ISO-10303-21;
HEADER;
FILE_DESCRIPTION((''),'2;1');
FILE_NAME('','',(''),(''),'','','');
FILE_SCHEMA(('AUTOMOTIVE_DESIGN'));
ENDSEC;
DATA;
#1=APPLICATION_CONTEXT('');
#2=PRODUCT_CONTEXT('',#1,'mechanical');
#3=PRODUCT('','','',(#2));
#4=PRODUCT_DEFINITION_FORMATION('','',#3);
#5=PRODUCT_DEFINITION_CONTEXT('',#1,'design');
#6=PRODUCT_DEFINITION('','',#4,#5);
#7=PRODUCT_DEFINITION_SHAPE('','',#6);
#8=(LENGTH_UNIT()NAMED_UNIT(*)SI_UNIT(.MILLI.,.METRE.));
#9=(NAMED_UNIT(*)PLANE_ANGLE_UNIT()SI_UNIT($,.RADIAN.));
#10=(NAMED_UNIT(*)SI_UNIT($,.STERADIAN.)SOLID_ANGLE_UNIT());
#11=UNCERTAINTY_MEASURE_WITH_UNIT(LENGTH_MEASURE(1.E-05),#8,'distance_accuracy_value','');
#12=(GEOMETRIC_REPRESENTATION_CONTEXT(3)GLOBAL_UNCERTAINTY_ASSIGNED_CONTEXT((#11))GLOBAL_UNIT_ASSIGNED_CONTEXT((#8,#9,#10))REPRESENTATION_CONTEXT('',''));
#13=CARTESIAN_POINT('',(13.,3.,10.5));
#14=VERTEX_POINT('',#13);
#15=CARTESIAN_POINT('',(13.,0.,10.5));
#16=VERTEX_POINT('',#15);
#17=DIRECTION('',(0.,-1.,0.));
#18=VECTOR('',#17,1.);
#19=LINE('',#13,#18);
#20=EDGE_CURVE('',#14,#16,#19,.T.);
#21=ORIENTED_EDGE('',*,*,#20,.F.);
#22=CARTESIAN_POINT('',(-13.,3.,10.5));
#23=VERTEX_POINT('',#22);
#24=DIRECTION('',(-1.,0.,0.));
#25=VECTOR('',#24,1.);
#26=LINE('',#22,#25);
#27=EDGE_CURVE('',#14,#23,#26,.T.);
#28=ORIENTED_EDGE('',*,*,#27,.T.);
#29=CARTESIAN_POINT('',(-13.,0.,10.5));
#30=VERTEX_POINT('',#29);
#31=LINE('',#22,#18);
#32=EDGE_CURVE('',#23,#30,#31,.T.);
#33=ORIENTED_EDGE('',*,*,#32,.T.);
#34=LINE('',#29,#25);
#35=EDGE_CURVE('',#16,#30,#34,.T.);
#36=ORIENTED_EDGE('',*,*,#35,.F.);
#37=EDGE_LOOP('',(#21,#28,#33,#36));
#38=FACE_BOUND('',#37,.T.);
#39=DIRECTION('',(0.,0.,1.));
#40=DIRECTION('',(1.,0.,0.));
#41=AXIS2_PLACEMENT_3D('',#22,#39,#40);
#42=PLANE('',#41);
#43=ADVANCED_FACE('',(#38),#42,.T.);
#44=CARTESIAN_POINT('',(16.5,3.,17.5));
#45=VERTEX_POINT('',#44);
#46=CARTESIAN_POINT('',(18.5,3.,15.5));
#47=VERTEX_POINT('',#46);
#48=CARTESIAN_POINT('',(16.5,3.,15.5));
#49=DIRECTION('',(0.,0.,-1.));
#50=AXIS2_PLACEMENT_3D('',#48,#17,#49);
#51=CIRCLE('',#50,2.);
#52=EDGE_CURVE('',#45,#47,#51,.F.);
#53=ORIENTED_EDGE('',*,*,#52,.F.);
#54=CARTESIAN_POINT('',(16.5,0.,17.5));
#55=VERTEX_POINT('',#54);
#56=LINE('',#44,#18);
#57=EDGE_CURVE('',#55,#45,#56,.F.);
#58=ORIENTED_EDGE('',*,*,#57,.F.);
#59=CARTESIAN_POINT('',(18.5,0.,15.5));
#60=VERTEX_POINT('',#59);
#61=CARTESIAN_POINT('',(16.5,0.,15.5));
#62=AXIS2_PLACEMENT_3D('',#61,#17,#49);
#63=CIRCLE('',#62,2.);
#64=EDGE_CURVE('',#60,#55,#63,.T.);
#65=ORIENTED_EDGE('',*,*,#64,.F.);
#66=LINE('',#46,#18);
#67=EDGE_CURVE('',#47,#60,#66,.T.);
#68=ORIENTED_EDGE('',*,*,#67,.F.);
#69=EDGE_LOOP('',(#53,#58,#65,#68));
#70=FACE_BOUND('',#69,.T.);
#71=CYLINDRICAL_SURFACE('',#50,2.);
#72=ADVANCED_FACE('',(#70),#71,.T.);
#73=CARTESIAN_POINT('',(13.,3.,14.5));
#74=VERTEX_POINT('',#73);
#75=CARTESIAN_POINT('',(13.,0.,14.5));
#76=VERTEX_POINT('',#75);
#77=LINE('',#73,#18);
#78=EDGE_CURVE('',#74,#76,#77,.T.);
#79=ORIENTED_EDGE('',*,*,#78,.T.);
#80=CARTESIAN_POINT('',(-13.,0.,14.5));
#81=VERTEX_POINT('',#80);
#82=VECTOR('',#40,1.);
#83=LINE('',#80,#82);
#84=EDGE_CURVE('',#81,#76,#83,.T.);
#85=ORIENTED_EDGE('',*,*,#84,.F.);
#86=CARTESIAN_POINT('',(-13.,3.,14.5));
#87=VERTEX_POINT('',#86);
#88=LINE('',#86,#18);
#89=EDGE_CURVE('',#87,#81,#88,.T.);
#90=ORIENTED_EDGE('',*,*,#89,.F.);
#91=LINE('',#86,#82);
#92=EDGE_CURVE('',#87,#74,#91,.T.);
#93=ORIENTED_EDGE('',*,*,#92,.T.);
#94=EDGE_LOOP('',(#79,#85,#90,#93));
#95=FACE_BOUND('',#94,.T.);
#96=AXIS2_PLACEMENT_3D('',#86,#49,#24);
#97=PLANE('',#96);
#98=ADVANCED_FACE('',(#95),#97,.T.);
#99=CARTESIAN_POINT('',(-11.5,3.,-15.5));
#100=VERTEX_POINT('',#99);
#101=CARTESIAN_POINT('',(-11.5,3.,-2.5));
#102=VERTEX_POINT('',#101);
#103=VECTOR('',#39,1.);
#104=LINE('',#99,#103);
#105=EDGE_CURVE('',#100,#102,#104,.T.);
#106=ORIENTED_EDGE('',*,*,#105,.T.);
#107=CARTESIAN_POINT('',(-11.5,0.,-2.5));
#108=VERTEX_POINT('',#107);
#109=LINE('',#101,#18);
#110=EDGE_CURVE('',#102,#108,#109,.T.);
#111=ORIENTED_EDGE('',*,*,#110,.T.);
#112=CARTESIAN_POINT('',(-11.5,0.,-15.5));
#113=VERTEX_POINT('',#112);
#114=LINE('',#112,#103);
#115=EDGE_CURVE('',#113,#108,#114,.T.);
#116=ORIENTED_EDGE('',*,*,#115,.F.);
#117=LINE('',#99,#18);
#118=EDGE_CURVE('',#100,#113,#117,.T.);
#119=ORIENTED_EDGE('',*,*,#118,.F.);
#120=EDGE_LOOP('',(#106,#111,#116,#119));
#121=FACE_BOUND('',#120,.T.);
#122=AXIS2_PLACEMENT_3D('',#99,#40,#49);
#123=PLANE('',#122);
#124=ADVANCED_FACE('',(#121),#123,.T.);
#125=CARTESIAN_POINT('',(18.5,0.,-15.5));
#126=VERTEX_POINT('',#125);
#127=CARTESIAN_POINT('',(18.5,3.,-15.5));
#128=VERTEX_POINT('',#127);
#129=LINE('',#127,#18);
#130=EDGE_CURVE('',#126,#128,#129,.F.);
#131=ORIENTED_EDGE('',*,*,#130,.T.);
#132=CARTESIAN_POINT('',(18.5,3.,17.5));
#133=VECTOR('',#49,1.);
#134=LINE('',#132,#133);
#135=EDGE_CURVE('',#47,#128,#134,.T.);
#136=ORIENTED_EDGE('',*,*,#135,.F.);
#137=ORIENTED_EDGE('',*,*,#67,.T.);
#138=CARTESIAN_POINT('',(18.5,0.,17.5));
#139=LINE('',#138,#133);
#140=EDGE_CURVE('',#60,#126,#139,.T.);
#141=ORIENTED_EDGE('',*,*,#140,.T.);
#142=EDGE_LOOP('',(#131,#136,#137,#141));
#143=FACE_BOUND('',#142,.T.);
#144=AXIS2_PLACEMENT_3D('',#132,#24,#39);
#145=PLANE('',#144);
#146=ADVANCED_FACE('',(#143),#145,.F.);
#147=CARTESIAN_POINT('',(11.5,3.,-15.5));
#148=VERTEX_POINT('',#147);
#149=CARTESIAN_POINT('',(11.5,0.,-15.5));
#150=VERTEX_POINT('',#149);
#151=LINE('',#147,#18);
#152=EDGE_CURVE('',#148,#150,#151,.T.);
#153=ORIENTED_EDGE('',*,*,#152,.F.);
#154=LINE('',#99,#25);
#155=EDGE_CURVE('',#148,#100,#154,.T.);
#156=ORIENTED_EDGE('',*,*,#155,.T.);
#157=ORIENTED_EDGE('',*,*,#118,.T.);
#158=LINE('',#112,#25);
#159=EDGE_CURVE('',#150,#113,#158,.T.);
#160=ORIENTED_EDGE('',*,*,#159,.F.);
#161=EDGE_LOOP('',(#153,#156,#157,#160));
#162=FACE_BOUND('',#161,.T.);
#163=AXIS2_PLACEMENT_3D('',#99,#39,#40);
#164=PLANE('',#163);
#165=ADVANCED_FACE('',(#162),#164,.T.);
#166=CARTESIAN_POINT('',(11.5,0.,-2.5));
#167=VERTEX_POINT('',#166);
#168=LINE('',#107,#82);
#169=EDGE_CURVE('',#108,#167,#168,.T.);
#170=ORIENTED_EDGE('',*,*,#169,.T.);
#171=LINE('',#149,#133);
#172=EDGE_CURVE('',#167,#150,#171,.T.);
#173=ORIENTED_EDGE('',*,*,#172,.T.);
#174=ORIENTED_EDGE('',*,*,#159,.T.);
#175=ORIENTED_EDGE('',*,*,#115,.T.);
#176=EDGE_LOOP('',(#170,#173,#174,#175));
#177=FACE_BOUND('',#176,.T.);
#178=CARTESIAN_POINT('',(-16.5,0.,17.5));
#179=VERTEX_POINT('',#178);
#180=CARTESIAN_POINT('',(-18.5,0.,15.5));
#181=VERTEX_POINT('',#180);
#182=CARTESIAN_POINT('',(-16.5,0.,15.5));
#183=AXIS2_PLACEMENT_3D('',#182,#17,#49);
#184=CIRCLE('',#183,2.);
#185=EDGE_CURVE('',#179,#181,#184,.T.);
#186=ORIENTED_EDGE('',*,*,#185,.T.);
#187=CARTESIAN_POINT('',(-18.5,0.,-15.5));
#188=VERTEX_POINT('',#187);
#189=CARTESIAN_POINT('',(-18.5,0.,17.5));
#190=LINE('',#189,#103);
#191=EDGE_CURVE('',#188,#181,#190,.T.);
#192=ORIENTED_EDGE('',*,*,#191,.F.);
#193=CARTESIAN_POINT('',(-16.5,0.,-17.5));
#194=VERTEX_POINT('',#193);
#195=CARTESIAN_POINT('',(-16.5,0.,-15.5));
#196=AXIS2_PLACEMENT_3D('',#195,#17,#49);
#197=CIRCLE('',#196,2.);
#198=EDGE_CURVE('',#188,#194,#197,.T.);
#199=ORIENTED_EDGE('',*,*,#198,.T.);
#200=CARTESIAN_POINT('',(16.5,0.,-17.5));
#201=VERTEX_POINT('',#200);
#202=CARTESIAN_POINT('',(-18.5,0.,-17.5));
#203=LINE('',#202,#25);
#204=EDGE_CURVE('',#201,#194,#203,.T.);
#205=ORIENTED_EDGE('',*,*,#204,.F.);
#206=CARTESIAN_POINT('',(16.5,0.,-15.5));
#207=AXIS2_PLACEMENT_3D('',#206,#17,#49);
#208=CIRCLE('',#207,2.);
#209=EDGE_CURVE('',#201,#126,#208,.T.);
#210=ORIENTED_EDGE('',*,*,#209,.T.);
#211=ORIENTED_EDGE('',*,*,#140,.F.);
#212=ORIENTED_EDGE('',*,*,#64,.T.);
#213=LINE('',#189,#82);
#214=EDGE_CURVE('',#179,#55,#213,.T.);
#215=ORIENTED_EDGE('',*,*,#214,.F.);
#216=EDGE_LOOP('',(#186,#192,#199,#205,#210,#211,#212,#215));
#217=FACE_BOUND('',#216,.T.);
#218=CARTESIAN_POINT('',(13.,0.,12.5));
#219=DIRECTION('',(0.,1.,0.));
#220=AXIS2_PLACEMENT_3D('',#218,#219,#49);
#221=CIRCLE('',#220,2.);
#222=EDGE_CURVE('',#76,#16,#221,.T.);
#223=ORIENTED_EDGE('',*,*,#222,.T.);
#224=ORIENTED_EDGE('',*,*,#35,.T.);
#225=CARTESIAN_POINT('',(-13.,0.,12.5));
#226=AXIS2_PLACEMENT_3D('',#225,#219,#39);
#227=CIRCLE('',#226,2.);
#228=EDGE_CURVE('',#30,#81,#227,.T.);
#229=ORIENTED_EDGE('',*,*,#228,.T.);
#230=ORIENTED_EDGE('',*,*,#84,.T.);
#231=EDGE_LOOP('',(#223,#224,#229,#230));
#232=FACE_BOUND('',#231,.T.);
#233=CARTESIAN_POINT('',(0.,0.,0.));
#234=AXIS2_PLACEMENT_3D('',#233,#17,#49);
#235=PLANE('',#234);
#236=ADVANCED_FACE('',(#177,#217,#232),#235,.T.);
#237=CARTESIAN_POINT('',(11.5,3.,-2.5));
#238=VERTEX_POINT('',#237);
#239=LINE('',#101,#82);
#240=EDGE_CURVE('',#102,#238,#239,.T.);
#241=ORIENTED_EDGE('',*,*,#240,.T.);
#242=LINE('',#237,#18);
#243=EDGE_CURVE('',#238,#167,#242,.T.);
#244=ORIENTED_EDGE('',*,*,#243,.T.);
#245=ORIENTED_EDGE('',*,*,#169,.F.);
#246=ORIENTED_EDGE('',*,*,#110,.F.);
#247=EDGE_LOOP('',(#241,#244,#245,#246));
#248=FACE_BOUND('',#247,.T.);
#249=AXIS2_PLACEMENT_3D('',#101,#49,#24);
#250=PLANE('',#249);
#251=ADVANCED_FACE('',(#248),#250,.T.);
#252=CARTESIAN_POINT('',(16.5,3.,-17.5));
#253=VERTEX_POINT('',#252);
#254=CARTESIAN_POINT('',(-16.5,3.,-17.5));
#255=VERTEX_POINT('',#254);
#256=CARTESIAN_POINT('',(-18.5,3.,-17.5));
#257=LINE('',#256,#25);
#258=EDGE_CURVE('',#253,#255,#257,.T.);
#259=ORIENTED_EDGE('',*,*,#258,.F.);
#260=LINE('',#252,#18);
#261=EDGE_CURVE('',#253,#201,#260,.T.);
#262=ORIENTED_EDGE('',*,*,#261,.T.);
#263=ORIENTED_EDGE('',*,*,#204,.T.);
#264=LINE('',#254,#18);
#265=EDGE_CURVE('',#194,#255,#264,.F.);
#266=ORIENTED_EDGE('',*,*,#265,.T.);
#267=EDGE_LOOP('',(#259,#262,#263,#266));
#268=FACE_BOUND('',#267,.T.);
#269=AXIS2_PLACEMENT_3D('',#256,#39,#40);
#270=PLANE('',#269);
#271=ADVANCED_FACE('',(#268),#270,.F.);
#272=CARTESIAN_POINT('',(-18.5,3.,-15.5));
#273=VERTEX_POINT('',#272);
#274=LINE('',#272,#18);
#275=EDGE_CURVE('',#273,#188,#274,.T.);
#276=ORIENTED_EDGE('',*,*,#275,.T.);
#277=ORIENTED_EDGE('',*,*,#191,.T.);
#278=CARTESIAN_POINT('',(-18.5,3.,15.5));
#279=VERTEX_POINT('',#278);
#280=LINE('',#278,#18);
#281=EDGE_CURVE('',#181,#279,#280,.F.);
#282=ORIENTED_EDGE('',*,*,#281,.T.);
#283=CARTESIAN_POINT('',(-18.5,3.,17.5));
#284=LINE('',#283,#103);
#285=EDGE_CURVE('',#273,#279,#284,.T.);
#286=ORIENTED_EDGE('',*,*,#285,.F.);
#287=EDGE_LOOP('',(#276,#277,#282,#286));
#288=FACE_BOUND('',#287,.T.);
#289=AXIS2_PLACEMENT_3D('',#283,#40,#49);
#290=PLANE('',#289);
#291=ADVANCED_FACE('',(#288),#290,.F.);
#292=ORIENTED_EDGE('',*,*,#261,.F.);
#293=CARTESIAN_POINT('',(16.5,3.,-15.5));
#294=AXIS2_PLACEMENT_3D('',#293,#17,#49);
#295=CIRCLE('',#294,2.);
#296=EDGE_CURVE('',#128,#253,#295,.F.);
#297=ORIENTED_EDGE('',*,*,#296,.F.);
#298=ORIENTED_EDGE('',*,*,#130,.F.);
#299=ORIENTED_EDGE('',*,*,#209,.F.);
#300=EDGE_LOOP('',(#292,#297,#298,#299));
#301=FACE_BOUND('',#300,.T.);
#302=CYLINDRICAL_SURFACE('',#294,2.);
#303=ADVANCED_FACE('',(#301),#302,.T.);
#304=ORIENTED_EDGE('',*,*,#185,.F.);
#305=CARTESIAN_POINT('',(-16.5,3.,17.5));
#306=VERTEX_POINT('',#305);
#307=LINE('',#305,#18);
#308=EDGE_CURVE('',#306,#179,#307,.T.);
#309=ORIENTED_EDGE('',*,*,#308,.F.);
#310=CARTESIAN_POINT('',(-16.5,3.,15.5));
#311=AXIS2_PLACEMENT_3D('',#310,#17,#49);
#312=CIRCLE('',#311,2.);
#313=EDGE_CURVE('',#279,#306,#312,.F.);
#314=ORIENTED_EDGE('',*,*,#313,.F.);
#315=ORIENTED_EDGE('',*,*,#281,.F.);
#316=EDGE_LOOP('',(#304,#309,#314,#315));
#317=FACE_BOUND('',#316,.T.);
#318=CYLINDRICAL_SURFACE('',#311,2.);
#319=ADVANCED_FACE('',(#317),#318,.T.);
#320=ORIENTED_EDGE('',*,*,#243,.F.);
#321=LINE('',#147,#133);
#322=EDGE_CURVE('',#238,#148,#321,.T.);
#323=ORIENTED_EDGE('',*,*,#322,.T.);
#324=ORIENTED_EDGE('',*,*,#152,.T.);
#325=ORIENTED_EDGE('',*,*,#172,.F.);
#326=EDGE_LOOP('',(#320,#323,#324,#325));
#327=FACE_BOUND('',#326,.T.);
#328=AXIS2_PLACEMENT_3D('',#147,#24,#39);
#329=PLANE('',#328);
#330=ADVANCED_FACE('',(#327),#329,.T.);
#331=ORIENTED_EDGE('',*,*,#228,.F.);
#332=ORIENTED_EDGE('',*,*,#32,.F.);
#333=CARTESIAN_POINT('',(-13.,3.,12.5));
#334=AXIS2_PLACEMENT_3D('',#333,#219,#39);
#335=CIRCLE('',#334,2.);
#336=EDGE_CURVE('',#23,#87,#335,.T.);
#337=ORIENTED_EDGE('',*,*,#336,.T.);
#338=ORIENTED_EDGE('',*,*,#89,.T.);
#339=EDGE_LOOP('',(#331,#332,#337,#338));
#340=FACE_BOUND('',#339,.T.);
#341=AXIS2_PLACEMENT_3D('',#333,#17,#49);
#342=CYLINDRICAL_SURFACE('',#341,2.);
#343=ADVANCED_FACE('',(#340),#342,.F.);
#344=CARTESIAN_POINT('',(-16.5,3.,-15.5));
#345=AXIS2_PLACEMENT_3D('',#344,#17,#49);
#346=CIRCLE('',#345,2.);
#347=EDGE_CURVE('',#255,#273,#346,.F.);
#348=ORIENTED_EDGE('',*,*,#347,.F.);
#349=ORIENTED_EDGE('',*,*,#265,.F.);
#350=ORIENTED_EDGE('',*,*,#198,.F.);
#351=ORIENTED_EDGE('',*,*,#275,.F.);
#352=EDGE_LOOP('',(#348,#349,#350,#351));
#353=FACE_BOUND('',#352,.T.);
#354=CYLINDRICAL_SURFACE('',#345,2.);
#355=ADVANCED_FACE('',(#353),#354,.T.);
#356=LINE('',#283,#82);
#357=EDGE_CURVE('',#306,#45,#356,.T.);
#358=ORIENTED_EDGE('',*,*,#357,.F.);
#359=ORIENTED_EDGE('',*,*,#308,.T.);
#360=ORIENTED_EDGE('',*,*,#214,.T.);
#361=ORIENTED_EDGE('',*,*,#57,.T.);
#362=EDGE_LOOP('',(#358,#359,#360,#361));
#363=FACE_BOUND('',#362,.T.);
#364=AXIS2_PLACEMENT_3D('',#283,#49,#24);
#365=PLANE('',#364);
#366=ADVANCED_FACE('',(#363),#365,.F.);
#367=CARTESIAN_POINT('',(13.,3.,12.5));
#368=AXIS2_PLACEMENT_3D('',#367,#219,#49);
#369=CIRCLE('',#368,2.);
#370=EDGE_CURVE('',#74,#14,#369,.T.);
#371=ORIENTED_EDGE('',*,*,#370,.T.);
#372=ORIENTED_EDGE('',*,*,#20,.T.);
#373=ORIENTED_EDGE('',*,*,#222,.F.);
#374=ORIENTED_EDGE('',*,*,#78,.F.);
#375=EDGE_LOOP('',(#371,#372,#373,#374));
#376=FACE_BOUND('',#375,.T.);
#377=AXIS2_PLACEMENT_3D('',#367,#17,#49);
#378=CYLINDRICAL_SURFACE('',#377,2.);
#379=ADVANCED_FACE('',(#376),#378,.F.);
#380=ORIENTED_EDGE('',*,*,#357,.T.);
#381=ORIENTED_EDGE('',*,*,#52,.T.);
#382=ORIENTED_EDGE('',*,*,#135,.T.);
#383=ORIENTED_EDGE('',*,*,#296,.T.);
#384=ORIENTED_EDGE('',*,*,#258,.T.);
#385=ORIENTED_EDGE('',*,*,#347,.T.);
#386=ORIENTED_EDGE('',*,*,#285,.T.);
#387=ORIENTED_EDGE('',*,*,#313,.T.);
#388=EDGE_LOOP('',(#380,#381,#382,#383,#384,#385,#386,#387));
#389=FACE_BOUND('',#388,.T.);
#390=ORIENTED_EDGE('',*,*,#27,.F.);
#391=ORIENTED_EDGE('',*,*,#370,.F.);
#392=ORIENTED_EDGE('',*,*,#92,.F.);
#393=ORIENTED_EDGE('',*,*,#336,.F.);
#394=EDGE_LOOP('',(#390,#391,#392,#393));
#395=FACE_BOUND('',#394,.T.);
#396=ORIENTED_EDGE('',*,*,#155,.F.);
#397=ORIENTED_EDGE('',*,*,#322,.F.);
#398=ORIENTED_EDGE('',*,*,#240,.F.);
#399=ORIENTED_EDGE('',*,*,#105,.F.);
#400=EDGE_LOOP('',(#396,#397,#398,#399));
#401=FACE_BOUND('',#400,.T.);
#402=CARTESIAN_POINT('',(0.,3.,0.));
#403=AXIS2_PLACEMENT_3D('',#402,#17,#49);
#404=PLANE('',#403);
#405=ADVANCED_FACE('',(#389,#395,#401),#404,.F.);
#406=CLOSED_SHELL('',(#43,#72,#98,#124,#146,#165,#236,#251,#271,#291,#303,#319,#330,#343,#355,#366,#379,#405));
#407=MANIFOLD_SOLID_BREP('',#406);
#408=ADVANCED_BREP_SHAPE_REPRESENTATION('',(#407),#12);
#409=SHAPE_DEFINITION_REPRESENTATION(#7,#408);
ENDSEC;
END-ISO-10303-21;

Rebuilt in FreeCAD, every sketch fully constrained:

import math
import FreeCAD as App
import Part
import Sketcher


def edges_at(feature, points):
    """Names of the edges that pass closest to the given points."""
    edges = feature.Shape.Edges
    near = lambda p: min(range(len(edges)), key=lambda i: edges[i].distToShape(Part.Vertex(*p))[0])
    return sorted({f"Edge{near(p) + 1}" for p in points})

doc = App.newDocument("Part")
params = doc.addObject("Spreadsheet::Sheet", "Params")
for row, (alias, value) in enumerate([
    ("sketch1_radius", "2 mm"),
    ("sketch1_width", "37 mm"),
    ("sketch1_width2", "26 mm"),
    ("sketch1_width3", "23 mm"),
    ("sketch1_height", "35 mm"),
    ("pad1_length", "3 mm"),
    ("fillet_radius", "2 mm"),
], start=1):
    params.set(f"A{row}", alias)
    params.set(f"B{row}", "=" + value)
    params.setAlias(f"B{row}", alias)

body = doc.addObject("PartDesign::Body", "Body")

# Sketch on XZ plane
sketch1 = body.newObject("Sketcher::SketchObject", "Sketch")
sketch1.AttachmentSupport = (doc.getObject("XZ_Plane"), [""])
sketch1.MapMode = "FlatFace"
sketch1.addGeometry(Part.LineSegment(App.Vector(-18.5, -17.5, 0), App.Vector(-18.5, 17.5, 0)), False)
sketch1.addGeometry(Part.LineSegment(App.Vector(-18.5, 17.5, 0), App.Vector(18.5, 17.5, 0)), False)
sketch1.addGeometry(Part.LineSegment(App.Vector(18.5, 17.5, 0), App.Vector(18.5, -17.5, 0)), False)
sketch1.addGeometry(Part.LineSegment(App.Vector(18.5, -17.5, 0), App.Vector(-18.5, -17.5, 0)), False)
sketch1.addGeometry(Part.ArcOfCircle(Part.Circle(App.Vector(-13, 12.5, 0), App.Vector(0, 0, 1), 2), math.radians(90), math.radians(270)), False)
sketch1.addGeometry(Part.LineSegment(App.Vector(-13, 10.5, 0), App.Vector(13, 10.5, 0)), False)
sketch1.addGeometry(Part.ArcOfCircle(Part.Circle(App.Vector(13, 12.5, 0), App.Vector(0, 0, 1), 2), math.radians(-90), math.radians(90)), False)
sketch1.addGeometry(Part.LineSegment(App.Vector(13, 14.5, 0), App.Vector(-13, 14.5, 0)), False)
sketch1.addGeometry(Part.LineSegment(App.Vector(11.5, -2.5, 0), App.Vector(-11.5, -2.5, 0)), False)
sketch1.addGeometry(Part.LineSegment(App.Vector(-11.5, -2.5, 0), App.Vector(-11.5, -15.5, 0)), False)
sketch1.addGeometry(Part.LineSegment(App.Vector(-11.5, -15.5, 0), App.Vector(11.5, -15.5, 0)), False)
sketch1.addGeometry(Part.LineSegment(App.Vector(11.5, -15.5, 0), App.Vector(11.5, -2.5, 0)), False)
sketch1.addConstraint(Sketcher.Constraint("Coincident", 0, 2, 1, 1))
sketch1.addConstraint(Sketcher.Constraint("Coincident", 1, 2, 2, 1))
sketch1.addConstraint(Sketcher.Constraint("Coincident", 2, 2, 3, 1))
sketch1.addConstraint(Sketcher.Constraint("Coincident", 3, 2, 0, 1))
sketch1.addConstraint(Sketcher.Constraint("Tangent", 4, 2, 5, 1))
sketch1.addConstraint(Sketcher.Constraint("Tangent", 5, 2, 6, 1))
sketch1.addConstraint(Sketcher.Constraint("Tangent", 6, 2, 7, 1))
sketch1.addConstraint(Sketcher.Constraint("Tangent", 7, 2, 4, 1))
sketch1.addConstraint(Sketcher.Constraint("Coincident", 8, 2, 9, 1))
sketch1.addConstraint(Sketcher.Constraint("Coincident", 9, 2, 10, 1))
sketch1.addConstraint(Sketcher.Constraint("Coincident", 10, 2, 11, 1))
sketch1.addConstraint(Sketcher.Constraint("Coincident", 11, 2, 8, 1))
sketch1.addConstraint(Sketcher.Constraint("Vertical", 0))
sketch1.addConstraint(Sketcher.Constraint("Horizontal", 1))
sketch1.addConstraint(Sketcher.Constraint("Vertical", 2))
sketch1.addConstraint(Sketcher.Constraint("Horizontal", 3))
sketch1.addConstraint(Sketcher.Constraint("Horizontal", 5))
sketch1.addConstraint(Sketcher.Constraint("Horizontal", 7))
sketch1.addConstraint(Sketcher.Constraint("Horizontal", 8))
sketch1.addConstraint(Sketcher.Constraint("Vertical", 9))
sketch1.addConstraint(Sketcher.Constraint("Horizontal", 10))
sketch1.addConstraint(Sketcher.Constraint("Vertical", 11))
sketch1.addConstraint(Sketcher.Constraint("Symmetric", 0, 2, 2, 2, -1, 1))
sketch1.addConstraint(Sketcher.Constraint("Radius", 4, 2.0))
sketch1.addConstraint(Sketcher.Constraint("DistanceX", 1, 1, 1, 2, 37.0))
sketch1.addConstraint(Sketcher.Constraint("DistanceX", 5, 1, 5, 2, 26.0))
sketch1.addConstraint(Sketcher.Constraint("DistanceX", 8, 2, 8, 1, 23.0))
sketch1.addConstraint(Sketcher.Constraint("DistanceY", 0, 1, 0, 2, 35.0))
sketch1.addConstraint(Sketcher.Constraint("DistanceY", 9, 2, 9, 1, 13.0))
sketch1.addConstraint(Sketcher.Constraint("DistanceX", 4, 3, -1, 1, 13.0))
sketch1.addConstraint(Sketcher.Constraint("DistanceY", 4, 3, 0, 2, 5.0))
sketch1.addConstraint(Sketcher.Constraint("DistanceY", 8, 2, 4, 2, 13.0))
sketch1.addConstraint(Sketcher.Constraint("DistanceX", 3, 2, 8, 2, 7.0))
sketch1.setExpression("Constraints[23]", "Params.sketch1_radius")
sketch1.setExpression("Constraints[24]", "Params.sketch1_width")
sketch1.setExpression("Constraints[25]", "Params.sketch1_width2")
sketch1.setExpression("Constraints[26]", "Params.sketch1_width3")
sketch1.setExpression("Constraints[27]", "Params.sketch1_height")
pad1 = body.newObject("PartDesign::Pad", "Pad")
pad1.Profile = sketch1
pad1.setExpression("Length", "Params.pad1_length")
pad1.Reversed = True
doc.recompute()

fillet = body.newObject("PartDesign::Fillet", "Fillet")
fillet.Base = (pad1, edges_at(pad1, [
    (18.5, 1.5, 17.5),
    (-18.5, 1.5, 17.5),
    (-18.5, 1.5, -17.5),
    (18.5, 1.5, -17.5),
]))
fillet.setExpression("Radius", "Params.fillet_radius")

doc.recompute()
